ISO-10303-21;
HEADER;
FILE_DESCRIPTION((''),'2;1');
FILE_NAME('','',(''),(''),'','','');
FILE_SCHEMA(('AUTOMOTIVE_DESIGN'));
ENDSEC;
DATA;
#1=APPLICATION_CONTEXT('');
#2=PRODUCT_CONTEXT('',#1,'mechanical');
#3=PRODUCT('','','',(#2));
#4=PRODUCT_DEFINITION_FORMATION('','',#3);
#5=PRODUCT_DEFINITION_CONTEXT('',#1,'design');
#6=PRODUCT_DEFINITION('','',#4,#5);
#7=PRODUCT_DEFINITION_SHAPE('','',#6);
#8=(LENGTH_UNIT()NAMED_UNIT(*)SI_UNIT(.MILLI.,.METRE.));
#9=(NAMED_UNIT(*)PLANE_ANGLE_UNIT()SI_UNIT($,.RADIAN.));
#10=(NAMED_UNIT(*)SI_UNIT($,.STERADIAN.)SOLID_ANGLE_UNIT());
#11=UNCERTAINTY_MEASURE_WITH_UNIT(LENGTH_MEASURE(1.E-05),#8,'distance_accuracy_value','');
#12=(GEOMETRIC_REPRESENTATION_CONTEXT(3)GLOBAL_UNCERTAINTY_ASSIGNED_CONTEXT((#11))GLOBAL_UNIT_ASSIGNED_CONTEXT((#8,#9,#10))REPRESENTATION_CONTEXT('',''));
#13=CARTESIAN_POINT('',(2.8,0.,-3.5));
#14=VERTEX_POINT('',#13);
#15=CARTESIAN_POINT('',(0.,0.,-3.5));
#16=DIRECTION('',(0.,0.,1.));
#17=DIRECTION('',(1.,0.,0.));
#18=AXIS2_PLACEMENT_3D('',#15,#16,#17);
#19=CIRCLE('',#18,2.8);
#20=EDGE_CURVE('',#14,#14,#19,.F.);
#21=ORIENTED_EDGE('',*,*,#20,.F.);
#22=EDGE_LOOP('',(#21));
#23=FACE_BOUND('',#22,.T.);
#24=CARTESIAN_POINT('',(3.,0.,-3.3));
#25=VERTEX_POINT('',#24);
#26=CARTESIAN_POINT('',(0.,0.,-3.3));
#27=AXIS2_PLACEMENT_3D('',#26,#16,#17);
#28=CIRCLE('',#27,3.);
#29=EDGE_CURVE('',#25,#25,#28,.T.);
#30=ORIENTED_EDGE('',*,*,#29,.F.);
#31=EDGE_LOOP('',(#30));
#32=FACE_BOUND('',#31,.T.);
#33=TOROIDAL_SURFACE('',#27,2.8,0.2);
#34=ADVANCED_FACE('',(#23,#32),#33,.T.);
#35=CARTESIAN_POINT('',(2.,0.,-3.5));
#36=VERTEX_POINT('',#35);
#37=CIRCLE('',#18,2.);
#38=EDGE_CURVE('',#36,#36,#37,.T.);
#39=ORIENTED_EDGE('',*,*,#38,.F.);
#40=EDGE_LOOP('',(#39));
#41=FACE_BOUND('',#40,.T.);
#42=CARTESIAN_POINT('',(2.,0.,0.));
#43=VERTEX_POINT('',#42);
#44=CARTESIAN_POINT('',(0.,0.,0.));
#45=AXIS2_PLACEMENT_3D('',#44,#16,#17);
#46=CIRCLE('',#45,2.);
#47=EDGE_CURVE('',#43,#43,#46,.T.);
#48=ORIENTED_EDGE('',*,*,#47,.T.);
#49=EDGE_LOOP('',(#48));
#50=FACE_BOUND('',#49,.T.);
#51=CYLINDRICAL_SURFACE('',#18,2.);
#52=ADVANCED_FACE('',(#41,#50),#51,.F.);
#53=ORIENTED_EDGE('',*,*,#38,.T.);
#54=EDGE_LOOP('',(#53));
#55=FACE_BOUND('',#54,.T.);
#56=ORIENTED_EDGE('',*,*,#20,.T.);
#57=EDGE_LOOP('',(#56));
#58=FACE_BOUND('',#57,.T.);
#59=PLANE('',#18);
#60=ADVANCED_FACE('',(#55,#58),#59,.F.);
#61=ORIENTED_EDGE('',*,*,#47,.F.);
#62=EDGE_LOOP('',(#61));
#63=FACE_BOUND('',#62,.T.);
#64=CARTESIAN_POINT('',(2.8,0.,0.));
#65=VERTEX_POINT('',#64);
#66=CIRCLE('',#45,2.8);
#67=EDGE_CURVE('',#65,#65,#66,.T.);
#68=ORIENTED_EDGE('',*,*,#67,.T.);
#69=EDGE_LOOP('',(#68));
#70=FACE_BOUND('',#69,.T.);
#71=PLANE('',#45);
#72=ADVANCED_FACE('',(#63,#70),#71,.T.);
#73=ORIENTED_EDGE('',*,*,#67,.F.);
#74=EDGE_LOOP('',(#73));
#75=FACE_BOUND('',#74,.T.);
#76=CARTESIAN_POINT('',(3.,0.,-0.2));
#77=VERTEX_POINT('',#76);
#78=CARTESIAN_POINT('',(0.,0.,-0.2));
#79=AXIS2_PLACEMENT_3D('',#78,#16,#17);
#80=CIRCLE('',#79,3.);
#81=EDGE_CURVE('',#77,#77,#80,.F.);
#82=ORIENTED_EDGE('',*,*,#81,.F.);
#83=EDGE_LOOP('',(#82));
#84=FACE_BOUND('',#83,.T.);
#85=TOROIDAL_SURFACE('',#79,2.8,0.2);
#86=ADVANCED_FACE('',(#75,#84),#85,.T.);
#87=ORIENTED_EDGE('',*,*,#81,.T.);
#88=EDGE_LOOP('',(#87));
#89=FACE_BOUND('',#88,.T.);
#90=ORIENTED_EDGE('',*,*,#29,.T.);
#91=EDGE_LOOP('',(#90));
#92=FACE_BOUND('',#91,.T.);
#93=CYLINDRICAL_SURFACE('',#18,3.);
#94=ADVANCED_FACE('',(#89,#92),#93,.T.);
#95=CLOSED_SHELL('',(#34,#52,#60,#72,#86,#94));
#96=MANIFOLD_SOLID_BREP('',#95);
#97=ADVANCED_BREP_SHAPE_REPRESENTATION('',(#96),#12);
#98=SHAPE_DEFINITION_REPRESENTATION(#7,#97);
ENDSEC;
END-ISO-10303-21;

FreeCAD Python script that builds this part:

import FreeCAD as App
import Part
import Sketcher
Q = App.Units.Quantity


def edges_at(feature, points):
    """Names of the edges that pass closest to the given points."""
    edges = feature.Shape.Edges
    near = lambda p: min(range(len(edges)), key=lambda i: edges[i].distToShape(Part.Vertex(*p))[0])
    return sorted({f"Edge{near(p) + 1}" for p in points})

doc = App.newDocument("Part")
params = doc.addObject("Spreadsheet::Sheet", "Params")
for row, (alias, value) in enumerate([
    ("sketch1_diameter", "6 mm"),
    ("sketch1_diameter2", "4 mm"),
    ("pad1_length", "3.5 mm"),
    ("fillet_radius", "0.2 mm"),
], start=1):
    params.set(f"A{row}", alias)
    params.set(f"B{row}", "=" + value)
    params.setAlias(f"B{row}", alias)

body = doc.addObject("PartDesign::Body", "Body")

# Sketch on XY plane
sketch1 = body.newObject("Sketcher::SketchObject", "Sketch")
sketch1.AttachmentSupport = (doc.getObject("XY_Plane"), [""])
sketch1.MapMode = "FlatFace"
sketch1.addGeometry([
    Part.Circle(App.Vector(0, 0, 0), App.Vector(0, 0, 1), 3),
    Part.Circle(App.Vector(0, 0, 0), App.Vector(0, 0, 1), 2),
], False)
sketch1.addConstraint([
    Sketcher.Constraint("Coincident", 0, 3, -1, 1),
    Sketcher.Constraint("Coincident", 1, 3, -1, 1),
    Sketcher.Constraint("Diameter", 0, Q("6 mm")),
    Sketcher.Constraint("Diameter", 1, Q("4 mm")),
])
sketch1.setExpression("Constraints[2]", "Params.sketch1_diameter")
sketch1.setExpression("Constraints[3]", "Params.sketch1_diameter2")
pad1 = body.newObject("PartDesign::Pad", "Pad")
pad1.Profile = sketch1
pad1.setExpression("Length", "Params.pad1_length")
pad1.Reversed = True
doc.recompute()

fillet = body.newObject("PartDesign::Fillet", "Fillet")
fillet.Base = (pad1, edges_at(pad1, [(-3, 0, 0), (-3, 0, -3.5)]))
fillet.setExpression("Radius", "Params.fillet_radius")

doc.recompute()
